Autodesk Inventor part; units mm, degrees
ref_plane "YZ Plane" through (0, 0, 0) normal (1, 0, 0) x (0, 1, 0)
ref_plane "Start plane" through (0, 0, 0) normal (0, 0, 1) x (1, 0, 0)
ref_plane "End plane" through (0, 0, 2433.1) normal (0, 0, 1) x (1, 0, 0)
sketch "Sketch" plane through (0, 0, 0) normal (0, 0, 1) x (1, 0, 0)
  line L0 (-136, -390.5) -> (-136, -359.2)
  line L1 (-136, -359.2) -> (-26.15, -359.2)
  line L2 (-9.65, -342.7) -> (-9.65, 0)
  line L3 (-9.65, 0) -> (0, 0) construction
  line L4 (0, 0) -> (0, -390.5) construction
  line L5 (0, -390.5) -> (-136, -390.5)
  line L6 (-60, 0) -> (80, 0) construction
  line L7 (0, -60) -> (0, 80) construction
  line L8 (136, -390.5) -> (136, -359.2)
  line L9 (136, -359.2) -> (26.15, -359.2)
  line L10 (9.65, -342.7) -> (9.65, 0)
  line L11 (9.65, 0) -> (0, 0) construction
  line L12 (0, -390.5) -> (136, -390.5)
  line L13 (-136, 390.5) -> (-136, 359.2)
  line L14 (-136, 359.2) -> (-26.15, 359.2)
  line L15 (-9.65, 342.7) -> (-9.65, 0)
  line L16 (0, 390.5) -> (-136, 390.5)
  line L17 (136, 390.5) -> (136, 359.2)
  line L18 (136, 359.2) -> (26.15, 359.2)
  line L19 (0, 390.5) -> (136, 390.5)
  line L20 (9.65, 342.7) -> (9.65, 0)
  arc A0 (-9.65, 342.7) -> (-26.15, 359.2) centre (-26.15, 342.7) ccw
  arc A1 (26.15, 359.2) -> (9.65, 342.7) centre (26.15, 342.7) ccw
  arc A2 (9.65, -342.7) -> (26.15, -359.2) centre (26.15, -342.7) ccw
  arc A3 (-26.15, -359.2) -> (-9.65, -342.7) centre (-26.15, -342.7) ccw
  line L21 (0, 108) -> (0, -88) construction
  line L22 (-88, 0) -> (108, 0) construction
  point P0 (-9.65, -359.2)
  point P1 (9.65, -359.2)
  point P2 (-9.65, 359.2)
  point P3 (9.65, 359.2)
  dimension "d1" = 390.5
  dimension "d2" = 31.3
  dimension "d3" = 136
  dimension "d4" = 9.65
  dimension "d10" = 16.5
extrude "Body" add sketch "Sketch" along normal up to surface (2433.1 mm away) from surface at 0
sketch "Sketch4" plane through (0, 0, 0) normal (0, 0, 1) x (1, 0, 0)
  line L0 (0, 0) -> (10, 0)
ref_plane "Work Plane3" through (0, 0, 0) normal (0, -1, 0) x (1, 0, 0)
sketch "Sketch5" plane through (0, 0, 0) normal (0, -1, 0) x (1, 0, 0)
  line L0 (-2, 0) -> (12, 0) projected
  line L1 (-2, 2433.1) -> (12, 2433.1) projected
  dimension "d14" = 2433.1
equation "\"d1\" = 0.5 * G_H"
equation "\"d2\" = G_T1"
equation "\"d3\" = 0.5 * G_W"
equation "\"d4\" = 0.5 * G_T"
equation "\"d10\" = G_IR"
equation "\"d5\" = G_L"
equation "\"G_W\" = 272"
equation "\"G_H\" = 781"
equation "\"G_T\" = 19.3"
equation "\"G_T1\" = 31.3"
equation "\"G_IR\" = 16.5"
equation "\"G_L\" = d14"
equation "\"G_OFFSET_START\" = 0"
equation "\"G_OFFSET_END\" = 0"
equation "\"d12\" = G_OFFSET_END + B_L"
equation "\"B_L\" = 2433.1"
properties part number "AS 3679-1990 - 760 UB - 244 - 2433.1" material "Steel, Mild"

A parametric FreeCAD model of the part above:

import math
import FreeCAD as App
import Part
import Sketcher
from FreeCAD import Vector

doc = App.newDocument("Part")
body = doc.addObject("PartDesign::Body", "Body")

sketch1 = doc.addObject("Sketcher::SketchObject", "Sketch")
body.addObject(sketch1)
sketch1.AttachmentSupport = (doc.XY_Plane, [""])
sketch1.MapMode = "FlatFace"
sketch1.addGeometry([
    Part.LineSegment(Vector(-136, -359, 0), Vector(-136, -390, 0)),
    Part.LineSegment(Vector(-136, -390, 0), Vector(136, -390, 0)),
    Part.LineSegment(Vector(136, -390, 0), Vector(136, -359, 0)),
    Part.LineSegment(Vector(136, -359, 0), Vector(26, -359, 0)),
    Part.ArcOfCircle(Part.Circle(Vector(26, -343, 0), Vector(0, 0, 1), 16), math.radians(180), math.radians(270)),
    Part.LineSegment(Vector(10, -343, 0), Vector(10, 343, 0)),
    Part.ArcOfCircle(Part.Circle(Vector(26, 343, 0), Vector(0, 0, 1), 16), math.radians(90), math.radians(180)),
    Part.LineSegment(Vector(26, 359, 0), Vector(136, 359, 0)),
    Part.LineSegment(Vector(136, 359, 0), Vector(136, 390, 0)),
    Part.LineSegment(Vector(136, 390, 0), Vector(-136, 390, 0)),
    Part.LineSegment(Vector(-136, 390, 0), Vector(-136, 359, 0)),
    Part.LineSegment(Vector(-136, 359, 0), Vector(-26, 359, 0)),
    Part.ArcOfCircle(Part.Circle(Vector(-26, 343, 0), Vector(0, 0, 1), 16), math.radians(0), math.radians(90)),
    Part.LineSegment(Vector(-10, 343, 0), Vector(-10, -343, 0)),
    Part.ArcOfCircle(Part.Circle(Vector(-26, -343, 0), Vector(0, 0, 1), 16), math.radians(-90), math.radians(0)),
    Part.LineSegment(Vector(-26, -359, 0), Vector(-136, -359, 0)),
], False)
sketch1.addConstraint([
    Sketcher.Constraint("Coincident", 0, 2, 1, 1),
    Sketcher.Constraint("Coincident", 1, 2, 2, 1),
    Sketcher.Constraint("Coincident", 2, 2, 3, 1),
    Sketcher.Constraint("Tangent", 3, 2, 4, 2),
    Sketcher.Constraint("Tangent", 4, 1, 5, 1),
    Sketcher.Constraint("Tangent", 5, 2, 6, 2),
    Sketcher.Constraint("Tangent", 6, 1, 7, 1),
    Sketcher.Constraint("Coincident", 7, 2, 8, 1),
    Sketcher.Constraint("Coincident", 8, 2, 9, 1),
    Sketcher.Constraint("Coincident", 9, 2, 10, 1),
    Sketcher.Constraint("Coincident", 10, 2, 11, 1),
    Sketcher.Constraint("Tangent", 11, 2, 12, 2),
    Sketcher.Constraint("Tangent", 12, 1, 13, 1),
    Sketcher.Constraint("Tangent", 13, 2, 14, 2),
    Sketcher.Constraint("Tangent", 14, 1, 15, 1),
    Sketcher.Constraint("Coincident", 15, 2, 0, 1),
    Sketcher.Constraint("Vertical", 0),
    Sketcher.Constraint("Horizontal", 1),
    Sketcher.Constraint("Vertical", 2),
    Sketcher.Constraint("Horizontal", 3),
    Sketcher.Constraint("Vertical", 5),
    Sketcher.Constraint("Horizontal", 7),
    Sketcher.Constraint("Vertical", 8),
    Sketcher.Constraint("Horizontal", 9),
    Sketcher.Constraint("Vertical", 10),
    Sketcher.Constraint("Horizontal", 11),
    Sketcher.Constraint("Vertical", 13),
    Sketcher.Constraint("Horizontal", 15),
    Sketcher.Constraint("Equal", 4, 6),
    Sketcher.Constraint("Equal", 6, 12),
    Sketcher.Constraint("Equal", 12, 14),
    Sketcher.Constraint("Symmetric", 4, 3, 12, 3, -1, 1),
    Sketcher.Constraint("Symmetric", 0, 2, 8, 2, -1, 1),
    Sketcher.Constraint("Symmetric", 7, 2, 10, 2, -2),
    Sketcher.Constraint("Symmetric", 2, 2, 15, 2, -2),
    Sketcher.Constraint("Radius", 4, 16.5),
    Sketcher.Constraint("DistanceY", 0, 2, 0, 1, 31.3),
    Sketcher.Constraint("DistanceX", 0, 2, -1, 1, 136.0),
    Sketcher.Constraint("DistanceY", 0, 2, -1, 1, 390.5),
    Sketcher.Constraint("DistanceX", -1, 1, 4, 1, 9.65),
])
pad1 = doc.addObject("PartDesign::Pad", "Pad")
body.addObject(pad1)
pad1.Profile = sketch1
pad1.Length = 2433.1

doc.recompute()
